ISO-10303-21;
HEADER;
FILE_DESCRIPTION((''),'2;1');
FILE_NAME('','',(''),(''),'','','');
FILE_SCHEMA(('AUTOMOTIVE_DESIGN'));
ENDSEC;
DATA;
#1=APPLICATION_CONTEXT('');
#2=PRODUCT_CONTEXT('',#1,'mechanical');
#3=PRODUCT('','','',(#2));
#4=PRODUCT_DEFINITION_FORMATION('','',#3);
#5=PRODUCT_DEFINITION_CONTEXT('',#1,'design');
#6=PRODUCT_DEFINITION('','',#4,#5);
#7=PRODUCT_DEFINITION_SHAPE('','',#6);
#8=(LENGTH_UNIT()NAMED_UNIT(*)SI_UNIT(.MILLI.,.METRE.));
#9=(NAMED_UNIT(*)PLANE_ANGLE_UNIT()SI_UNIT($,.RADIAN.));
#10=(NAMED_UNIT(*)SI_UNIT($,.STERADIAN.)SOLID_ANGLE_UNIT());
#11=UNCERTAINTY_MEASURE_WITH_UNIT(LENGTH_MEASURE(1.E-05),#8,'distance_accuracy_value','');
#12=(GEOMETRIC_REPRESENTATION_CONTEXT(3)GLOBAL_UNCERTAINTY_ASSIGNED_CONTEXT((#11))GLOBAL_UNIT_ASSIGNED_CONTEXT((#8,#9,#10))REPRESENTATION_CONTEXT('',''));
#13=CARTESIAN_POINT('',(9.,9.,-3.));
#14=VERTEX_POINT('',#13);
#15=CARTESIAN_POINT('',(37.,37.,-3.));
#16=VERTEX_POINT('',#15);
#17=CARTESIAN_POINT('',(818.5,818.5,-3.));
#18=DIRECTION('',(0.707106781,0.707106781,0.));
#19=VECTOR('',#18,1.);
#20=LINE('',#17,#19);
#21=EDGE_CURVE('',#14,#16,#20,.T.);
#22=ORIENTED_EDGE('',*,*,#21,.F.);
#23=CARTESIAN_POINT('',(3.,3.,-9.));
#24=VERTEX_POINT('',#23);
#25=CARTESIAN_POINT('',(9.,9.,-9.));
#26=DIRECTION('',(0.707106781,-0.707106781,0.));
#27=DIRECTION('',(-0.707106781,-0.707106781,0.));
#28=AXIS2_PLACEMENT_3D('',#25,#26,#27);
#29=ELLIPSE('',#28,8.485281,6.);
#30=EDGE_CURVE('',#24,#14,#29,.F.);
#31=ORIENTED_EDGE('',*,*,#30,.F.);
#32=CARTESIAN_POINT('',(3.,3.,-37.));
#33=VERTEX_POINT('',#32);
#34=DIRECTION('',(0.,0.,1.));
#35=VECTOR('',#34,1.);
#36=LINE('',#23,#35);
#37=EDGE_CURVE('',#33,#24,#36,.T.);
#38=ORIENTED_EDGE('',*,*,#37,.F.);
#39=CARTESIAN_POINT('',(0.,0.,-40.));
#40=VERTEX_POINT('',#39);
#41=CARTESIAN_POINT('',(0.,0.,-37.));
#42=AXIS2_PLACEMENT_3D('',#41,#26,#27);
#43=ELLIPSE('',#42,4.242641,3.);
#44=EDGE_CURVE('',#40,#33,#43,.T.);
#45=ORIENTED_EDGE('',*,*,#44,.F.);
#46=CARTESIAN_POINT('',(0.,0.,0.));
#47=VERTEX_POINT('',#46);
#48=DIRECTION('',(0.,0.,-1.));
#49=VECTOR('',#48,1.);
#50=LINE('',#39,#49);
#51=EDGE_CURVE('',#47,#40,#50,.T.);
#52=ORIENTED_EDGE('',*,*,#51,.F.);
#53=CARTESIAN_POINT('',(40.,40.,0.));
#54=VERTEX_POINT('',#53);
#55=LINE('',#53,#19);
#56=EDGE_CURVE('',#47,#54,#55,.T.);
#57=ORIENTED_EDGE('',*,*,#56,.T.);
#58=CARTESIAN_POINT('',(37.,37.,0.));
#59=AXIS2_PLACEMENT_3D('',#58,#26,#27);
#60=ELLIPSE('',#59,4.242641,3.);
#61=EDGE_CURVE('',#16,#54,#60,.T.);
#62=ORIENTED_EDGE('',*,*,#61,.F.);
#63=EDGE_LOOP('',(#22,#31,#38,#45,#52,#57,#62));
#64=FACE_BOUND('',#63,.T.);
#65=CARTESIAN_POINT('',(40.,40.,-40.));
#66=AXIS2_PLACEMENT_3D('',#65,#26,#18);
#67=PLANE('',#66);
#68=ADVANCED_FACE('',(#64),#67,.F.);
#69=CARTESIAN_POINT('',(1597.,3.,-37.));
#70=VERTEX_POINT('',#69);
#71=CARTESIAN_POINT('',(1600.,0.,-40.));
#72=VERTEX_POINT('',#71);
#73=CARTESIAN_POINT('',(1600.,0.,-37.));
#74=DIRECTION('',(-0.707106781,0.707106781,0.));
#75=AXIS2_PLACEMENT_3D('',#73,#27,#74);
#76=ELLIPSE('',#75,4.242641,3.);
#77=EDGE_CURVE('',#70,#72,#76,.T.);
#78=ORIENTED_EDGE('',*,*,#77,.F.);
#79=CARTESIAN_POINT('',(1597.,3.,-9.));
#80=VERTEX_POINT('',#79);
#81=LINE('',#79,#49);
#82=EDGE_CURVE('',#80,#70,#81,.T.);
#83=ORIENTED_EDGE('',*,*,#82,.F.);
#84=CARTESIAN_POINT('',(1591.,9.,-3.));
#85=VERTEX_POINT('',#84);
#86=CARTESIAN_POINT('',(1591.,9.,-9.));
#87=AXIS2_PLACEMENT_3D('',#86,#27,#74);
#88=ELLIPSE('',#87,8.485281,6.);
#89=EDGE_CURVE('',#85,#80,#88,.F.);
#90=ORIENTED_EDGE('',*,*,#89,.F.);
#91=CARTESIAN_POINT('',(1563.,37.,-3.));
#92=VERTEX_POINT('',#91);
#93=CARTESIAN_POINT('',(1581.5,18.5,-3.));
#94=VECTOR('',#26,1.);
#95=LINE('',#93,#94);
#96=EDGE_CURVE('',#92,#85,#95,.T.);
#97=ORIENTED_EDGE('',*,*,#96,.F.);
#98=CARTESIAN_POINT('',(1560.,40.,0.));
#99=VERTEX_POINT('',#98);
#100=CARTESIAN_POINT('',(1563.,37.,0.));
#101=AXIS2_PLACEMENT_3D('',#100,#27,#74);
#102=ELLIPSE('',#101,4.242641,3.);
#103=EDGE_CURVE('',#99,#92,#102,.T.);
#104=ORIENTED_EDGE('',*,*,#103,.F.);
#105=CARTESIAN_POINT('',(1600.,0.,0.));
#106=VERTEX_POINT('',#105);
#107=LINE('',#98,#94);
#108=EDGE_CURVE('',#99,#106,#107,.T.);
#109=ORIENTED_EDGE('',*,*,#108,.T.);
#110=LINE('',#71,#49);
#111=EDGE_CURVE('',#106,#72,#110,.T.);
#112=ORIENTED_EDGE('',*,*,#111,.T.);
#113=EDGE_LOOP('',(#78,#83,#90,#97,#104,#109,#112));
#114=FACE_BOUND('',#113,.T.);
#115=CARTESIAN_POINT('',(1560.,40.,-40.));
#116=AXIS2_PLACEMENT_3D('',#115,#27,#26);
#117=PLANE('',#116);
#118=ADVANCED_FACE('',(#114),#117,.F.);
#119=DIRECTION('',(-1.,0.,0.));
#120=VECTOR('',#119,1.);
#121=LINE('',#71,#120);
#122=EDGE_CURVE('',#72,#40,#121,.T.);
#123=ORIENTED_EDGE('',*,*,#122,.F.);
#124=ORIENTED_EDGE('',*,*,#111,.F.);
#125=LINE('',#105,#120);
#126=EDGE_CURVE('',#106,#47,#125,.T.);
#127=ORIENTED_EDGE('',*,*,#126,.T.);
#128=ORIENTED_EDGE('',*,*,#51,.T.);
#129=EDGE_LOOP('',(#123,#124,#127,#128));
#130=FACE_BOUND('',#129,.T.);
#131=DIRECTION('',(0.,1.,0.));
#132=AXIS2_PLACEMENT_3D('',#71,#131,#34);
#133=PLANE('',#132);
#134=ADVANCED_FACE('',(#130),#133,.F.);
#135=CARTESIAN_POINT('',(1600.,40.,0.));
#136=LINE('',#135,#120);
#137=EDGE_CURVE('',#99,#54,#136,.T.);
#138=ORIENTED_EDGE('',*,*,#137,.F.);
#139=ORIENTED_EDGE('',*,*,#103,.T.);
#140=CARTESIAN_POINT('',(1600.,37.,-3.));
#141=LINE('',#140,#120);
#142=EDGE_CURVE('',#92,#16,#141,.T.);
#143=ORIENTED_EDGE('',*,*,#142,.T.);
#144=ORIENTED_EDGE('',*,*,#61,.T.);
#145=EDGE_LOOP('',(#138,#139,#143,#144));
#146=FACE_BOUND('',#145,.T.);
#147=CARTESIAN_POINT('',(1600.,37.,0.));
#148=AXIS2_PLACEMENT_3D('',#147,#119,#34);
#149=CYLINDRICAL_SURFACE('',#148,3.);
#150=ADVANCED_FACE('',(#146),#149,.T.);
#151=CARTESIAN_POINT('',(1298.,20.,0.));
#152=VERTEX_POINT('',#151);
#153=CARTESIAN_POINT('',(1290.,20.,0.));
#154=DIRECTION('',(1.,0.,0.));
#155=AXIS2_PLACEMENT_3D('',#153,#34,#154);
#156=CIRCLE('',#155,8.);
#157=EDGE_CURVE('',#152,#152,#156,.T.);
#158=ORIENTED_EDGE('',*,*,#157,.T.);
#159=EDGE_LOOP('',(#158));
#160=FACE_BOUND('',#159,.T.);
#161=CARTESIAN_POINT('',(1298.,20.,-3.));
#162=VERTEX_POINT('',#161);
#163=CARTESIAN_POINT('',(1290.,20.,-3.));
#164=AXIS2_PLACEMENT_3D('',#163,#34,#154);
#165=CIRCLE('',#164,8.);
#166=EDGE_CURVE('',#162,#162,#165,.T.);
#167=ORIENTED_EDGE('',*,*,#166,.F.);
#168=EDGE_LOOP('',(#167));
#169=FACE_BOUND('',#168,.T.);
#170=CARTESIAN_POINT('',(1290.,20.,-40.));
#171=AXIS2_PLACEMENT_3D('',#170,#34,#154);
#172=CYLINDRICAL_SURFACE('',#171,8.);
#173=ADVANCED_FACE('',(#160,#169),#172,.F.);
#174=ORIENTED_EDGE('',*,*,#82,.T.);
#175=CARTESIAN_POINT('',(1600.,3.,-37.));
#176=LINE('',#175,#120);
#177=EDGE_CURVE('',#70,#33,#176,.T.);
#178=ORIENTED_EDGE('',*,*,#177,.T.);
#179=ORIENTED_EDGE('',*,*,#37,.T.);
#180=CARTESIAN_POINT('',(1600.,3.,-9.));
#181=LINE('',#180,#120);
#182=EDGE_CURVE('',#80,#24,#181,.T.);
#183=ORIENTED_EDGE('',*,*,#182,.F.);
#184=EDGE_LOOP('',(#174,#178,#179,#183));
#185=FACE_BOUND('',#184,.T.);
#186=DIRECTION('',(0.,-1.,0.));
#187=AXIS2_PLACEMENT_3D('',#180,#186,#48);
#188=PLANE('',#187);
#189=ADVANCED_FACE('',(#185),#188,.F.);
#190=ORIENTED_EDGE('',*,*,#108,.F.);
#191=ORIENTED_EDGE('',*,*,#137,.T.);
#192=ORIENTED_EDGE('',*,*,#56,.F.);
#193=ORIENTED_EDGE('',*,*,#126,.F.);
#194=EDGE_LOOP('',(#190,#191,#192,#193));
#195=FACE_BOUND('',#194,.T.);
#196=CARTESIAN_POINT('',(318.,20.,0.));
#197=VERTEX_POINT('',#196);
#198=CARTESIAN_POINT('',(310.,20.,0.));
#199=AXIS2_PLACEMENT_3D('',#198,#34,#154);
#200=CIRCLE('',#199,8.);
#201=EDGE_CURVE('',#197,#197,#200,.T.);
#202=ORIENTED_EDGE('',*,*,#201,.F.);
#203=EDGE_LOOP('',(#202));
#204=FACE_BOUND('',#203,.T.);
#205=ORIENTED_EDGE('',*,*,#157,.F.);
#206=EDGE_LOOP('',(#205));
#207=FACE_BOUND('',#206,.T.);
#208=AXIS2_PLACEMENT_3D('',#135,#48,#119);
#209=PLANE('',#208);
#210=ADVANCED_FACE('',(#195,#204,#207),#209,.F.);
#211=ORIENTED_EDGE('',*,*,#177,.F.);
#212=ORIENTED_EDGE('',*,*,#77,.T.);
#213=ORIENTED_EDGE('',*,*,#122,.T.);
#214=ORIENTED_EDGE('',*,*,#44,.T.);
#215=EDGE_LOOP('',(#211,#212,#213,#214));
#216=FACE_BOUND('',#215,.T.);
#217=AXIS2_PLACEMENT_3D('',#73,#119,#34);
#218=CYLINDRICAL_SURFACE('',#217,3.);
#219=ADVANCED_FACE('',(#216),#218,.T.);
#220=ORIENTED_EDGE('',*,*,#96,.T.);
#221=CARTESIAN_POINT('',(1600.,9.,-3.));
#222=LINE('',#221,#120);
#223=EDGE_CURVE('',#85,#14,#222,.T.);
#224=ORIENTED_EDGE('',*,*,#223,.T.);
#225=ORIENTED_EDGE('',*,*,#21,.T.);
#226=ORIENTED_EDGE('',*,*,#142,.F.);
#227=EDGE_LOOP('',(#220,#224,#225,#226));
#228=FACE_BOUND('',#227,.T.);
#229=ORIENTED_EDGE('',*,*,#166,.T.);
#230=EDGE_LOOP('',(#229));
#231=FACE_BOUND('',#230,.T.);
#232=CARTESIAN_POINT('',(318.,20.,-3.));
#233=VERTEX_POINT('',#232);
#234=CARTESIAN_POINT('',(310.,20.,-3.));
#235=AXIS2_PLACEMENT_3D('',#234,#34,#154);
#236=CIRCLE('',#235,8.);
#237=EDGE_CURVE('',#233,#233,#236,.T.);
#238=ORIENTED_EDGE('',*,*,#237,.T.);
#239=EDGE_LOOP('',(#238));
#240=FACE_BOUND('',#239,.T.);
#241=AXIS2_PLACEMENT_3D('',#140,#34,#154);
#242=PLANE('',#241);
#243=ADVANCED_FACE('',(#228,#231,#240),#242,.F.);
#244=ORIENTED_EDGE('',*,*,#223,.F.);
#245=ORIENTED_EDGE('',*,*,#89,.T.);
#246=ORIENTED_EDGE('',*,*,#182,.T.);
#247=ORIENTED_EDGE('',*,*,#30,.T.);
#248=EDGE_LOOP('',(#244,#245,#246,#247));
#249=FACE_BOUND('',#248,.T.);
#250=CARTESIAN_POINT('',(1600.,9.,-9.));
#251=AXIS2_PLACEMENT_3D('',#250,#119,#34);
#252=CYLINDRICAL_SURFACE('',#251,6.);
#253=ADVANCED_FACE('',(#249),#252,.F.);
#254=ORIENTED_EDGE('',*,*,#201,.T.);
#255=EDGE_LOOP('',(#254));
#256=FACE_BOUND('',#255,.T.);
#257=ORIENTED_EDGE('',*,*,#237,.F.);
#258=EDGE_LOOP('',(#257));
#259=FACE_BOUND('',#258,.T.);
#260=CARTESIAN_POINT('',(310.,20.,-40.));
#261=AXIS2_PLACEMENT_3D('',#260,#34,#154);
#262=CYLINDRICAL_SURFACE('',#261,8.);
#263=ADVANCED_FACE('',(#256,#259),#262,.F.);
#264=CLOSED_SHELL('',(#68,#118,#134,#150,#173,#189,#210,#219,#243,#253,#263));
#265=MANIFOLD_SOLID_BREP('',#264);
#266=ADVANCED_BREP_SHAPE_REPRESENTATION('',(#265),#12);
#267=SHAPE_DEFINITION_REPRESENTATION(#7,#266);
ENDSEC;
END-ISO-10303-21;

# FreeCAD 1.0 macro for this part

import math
import FreeCAD as App
import Part
import Sketcher

V = App.Vector
Q = App.Units.Quantity


def add_polygon(sketch, points):
    """Adds a closed chain of lines whose ends are joined by coincident constraints."""
    first, n = sketch.GeometryCount, len(points)
    for a, b in zip(points, points[1:] + points[:1]):
        sketch.addGeometry(Part.LineSegment(App.Vector(*a, 0), App.Vector(*b, 0)), False)
    for i in range(n):
        sketch.addConstraint(Sketcher.Constraint("Coincident", first + i, 2, first + (i + 1) % n, 1))

doc = App.newDocument("Part")
body = doc.addObject("PartDesign::Body", "Body")

# Sketch on YZ plane
sketch1 = body.newObject("Sketcher::SketchObject", "Sketch")
sketch1.AttachmentSupport = (doc.getObject("YZ_Plane"), [""])
sketch1.MapMode = "FlatFace"
sketch1.addGeometry(Part.LineSegment(V(40, 0, 0), V(0, 0, 0)), False)
sketch1.addGeometry(Part.LineSegment(V(0, 0, 0), V(0, -40, 0)), False)
sketch1.addGeometry(Part.ArcOfCircle(Part.Circle(V(0, -37, 0), V(0, 0, 1), 3), math.radians(-90), math.radians(0)), False)
sketch1.addGeometry(Part.LineSegment(V(3, -37, 0), V(3, -9, 0)), False)
sketch1.addGeometry(Part.ArcOfCircle(Part.Circle(V(9, -9, 0), V(0, 0, 1), 6), math.radians(90), math.radians(180)), False)
sketch1.addGeometry(Part.LineSegment(V(9, -3, 0), V(37, -3, 0)), False)
sketch1.addGeometry(Part.ArcOfCircle(Part.Circle(V(37, 0, 0), V(0, 0, 1), 3), math.radians(-90), math.radians(0)), False)
sketch1.addConstraint(Sketcher.Constraint("Coincident", 0, 2, 1, 1))
sketch1.addConstraint(Sketcher.Constraint("Coincident", 1, 2, 2, 1))
sketch1.addConstraint(Sketcher.Constraint("Tangent", 2, 2, 3, 1))
sketch1.addConstraint(Sketcher.Constraint("Tangent", 3, 2, 4, 2))
sketch1.addConstraint(Sketcher.Constraint("Tangent", 4, 1, 5, 1))
sketch1.addConstraint(Sketcher.Constraint("Tangent", 5, 2, 6, 1))
sketch1.addConstraint(Sketcher.Constraint("Coincident", 6, 2, 0, 1))
sketch1.addConstraint(Sketcher.Constraint("Horizontal", 0))
sketch1.addConstraint(Sketcher.Constraint("Vertical", 1))
sketch1.addConstraint(Sketcher.Constraint("Vertical", 3))
sketch1.addConstraint(Sketcher.Constraint("Horizontal", 5))
sketch1.addConstraint(Sketcher.Constraint("Coincident", 0, 2, -1, 1))
sketch1.addConstraint(Sketcher.Constraint("Equal", 2, 6))
sketch1.addConstraint(Sketcher.Constraint("PointOnObject", 2, 3, -2))
sketch1.addConstraint(Sketcher.Constraint("PointOnObject", 6, 3, -1))
sketch1.addConstraint(Sketcher.Constraint("Equal", 0, 1))
sketch1.addConstraint(Sketcher.Constraint("Radius", 2, Q("3 mm")))
sketch1.addConstraint(Sketcher.Constraint("Radius", 4, Q("6 mm")))
sketch1.addConstraint(Sketcher.Constraint("DistanceX", 0, 2, 0, 1, Q("40 mm")))
pad1 = body.newObject("PartDesign::Pad", "Pad")
pad1.Profile = sketch1
pad1.Length = 1600

# Sketch on XY plane
sketch2 = body.newObject("Sketcher::SketchObject", "Sketch001")
sketch2.AttachmentSupport = (doc.getObject("XY_Plane"), [""])
sketch2.MapMode = "FlatFace"
sketch2.addGeometry(Part.Circle(V(310, 20, 0), V(0, 0, 1), 8), False)  # 0
sketch2.addGeometry(Part.Circle(V(1290, 20, 0), V(0, 0, 1), 8), False)  # 1
add_polygon(sketch2, [(1600, 0), (1600, 40), (1560, 40)])  # lines 2-4
add_polygon(sketch2, [(0, 40), (0, 0), (40, 40)])  # lines 5-7
sketch2.addConstraint(Sketcher.Constraint("Vertical", 2))
sketch2.addConstraint(Sketcher.Constraint("Horizontal", 3))
sketch2.addConstraint(Sketcher.Constraint("Vertical", 5))
sketch2.addConstraint(Sketcher.Constraint("Horizontal", 7))
sketch2.addConstraint(Sketcher.Constraint("Coincident", 5, 2, -1, 1))
sketch2.addConstraint(Sketcher.Constraint("Equal", 0, 1))
sketch2.addConstraint(Sketcher.Constraint("PointOnObject", 4, 2, -1))
sketch2.addConstraint(Sketcher.Constraint("Perpendicular", 4, 6))
sketch2.addConstraint(Sketcher.Constraint("Horizontal", 0, 3, 1, 3))
sketch2.addConstraint(Sketcher.Constraint("Horizontal", 3, 2, 6, 2))
sketch2.addConstraint(Sketcher.Constraint("Equal", 3, 7))
sketch2.addConstraint(Sketcher.Constraint("Diameter", 0, Q("16 mm")))
sketch2.addConstraint(Sketcher.Constraint("DistanceX", 3, 2, 3, 1, Q("40 mm")))
sketch2.addConstraint(Sketcher.Constraint("DistanceX", -1, 1, 0, 3, Q("310 mm")))
sketch2.addConstraint(Sketcher.Constraint("DistanceY", -1, 1, 0, 3, Q("20 mm")))
sketch2.addConstraint(Sketcher.Constraint("DistanceX", -1, 1, 1, 3, Q("1290 mm")))
sketch2.addConstraint(Sketcher.Constraint("DistanceX", -1, 1, 2, 2, Q("1600 mm")))
pocket1 = body.newObject("PartDesign::Pocket", "Pocket")
pocket1.Profile = sketch2
pocket1.Type = "ThroughAll"

doc.recompute()
